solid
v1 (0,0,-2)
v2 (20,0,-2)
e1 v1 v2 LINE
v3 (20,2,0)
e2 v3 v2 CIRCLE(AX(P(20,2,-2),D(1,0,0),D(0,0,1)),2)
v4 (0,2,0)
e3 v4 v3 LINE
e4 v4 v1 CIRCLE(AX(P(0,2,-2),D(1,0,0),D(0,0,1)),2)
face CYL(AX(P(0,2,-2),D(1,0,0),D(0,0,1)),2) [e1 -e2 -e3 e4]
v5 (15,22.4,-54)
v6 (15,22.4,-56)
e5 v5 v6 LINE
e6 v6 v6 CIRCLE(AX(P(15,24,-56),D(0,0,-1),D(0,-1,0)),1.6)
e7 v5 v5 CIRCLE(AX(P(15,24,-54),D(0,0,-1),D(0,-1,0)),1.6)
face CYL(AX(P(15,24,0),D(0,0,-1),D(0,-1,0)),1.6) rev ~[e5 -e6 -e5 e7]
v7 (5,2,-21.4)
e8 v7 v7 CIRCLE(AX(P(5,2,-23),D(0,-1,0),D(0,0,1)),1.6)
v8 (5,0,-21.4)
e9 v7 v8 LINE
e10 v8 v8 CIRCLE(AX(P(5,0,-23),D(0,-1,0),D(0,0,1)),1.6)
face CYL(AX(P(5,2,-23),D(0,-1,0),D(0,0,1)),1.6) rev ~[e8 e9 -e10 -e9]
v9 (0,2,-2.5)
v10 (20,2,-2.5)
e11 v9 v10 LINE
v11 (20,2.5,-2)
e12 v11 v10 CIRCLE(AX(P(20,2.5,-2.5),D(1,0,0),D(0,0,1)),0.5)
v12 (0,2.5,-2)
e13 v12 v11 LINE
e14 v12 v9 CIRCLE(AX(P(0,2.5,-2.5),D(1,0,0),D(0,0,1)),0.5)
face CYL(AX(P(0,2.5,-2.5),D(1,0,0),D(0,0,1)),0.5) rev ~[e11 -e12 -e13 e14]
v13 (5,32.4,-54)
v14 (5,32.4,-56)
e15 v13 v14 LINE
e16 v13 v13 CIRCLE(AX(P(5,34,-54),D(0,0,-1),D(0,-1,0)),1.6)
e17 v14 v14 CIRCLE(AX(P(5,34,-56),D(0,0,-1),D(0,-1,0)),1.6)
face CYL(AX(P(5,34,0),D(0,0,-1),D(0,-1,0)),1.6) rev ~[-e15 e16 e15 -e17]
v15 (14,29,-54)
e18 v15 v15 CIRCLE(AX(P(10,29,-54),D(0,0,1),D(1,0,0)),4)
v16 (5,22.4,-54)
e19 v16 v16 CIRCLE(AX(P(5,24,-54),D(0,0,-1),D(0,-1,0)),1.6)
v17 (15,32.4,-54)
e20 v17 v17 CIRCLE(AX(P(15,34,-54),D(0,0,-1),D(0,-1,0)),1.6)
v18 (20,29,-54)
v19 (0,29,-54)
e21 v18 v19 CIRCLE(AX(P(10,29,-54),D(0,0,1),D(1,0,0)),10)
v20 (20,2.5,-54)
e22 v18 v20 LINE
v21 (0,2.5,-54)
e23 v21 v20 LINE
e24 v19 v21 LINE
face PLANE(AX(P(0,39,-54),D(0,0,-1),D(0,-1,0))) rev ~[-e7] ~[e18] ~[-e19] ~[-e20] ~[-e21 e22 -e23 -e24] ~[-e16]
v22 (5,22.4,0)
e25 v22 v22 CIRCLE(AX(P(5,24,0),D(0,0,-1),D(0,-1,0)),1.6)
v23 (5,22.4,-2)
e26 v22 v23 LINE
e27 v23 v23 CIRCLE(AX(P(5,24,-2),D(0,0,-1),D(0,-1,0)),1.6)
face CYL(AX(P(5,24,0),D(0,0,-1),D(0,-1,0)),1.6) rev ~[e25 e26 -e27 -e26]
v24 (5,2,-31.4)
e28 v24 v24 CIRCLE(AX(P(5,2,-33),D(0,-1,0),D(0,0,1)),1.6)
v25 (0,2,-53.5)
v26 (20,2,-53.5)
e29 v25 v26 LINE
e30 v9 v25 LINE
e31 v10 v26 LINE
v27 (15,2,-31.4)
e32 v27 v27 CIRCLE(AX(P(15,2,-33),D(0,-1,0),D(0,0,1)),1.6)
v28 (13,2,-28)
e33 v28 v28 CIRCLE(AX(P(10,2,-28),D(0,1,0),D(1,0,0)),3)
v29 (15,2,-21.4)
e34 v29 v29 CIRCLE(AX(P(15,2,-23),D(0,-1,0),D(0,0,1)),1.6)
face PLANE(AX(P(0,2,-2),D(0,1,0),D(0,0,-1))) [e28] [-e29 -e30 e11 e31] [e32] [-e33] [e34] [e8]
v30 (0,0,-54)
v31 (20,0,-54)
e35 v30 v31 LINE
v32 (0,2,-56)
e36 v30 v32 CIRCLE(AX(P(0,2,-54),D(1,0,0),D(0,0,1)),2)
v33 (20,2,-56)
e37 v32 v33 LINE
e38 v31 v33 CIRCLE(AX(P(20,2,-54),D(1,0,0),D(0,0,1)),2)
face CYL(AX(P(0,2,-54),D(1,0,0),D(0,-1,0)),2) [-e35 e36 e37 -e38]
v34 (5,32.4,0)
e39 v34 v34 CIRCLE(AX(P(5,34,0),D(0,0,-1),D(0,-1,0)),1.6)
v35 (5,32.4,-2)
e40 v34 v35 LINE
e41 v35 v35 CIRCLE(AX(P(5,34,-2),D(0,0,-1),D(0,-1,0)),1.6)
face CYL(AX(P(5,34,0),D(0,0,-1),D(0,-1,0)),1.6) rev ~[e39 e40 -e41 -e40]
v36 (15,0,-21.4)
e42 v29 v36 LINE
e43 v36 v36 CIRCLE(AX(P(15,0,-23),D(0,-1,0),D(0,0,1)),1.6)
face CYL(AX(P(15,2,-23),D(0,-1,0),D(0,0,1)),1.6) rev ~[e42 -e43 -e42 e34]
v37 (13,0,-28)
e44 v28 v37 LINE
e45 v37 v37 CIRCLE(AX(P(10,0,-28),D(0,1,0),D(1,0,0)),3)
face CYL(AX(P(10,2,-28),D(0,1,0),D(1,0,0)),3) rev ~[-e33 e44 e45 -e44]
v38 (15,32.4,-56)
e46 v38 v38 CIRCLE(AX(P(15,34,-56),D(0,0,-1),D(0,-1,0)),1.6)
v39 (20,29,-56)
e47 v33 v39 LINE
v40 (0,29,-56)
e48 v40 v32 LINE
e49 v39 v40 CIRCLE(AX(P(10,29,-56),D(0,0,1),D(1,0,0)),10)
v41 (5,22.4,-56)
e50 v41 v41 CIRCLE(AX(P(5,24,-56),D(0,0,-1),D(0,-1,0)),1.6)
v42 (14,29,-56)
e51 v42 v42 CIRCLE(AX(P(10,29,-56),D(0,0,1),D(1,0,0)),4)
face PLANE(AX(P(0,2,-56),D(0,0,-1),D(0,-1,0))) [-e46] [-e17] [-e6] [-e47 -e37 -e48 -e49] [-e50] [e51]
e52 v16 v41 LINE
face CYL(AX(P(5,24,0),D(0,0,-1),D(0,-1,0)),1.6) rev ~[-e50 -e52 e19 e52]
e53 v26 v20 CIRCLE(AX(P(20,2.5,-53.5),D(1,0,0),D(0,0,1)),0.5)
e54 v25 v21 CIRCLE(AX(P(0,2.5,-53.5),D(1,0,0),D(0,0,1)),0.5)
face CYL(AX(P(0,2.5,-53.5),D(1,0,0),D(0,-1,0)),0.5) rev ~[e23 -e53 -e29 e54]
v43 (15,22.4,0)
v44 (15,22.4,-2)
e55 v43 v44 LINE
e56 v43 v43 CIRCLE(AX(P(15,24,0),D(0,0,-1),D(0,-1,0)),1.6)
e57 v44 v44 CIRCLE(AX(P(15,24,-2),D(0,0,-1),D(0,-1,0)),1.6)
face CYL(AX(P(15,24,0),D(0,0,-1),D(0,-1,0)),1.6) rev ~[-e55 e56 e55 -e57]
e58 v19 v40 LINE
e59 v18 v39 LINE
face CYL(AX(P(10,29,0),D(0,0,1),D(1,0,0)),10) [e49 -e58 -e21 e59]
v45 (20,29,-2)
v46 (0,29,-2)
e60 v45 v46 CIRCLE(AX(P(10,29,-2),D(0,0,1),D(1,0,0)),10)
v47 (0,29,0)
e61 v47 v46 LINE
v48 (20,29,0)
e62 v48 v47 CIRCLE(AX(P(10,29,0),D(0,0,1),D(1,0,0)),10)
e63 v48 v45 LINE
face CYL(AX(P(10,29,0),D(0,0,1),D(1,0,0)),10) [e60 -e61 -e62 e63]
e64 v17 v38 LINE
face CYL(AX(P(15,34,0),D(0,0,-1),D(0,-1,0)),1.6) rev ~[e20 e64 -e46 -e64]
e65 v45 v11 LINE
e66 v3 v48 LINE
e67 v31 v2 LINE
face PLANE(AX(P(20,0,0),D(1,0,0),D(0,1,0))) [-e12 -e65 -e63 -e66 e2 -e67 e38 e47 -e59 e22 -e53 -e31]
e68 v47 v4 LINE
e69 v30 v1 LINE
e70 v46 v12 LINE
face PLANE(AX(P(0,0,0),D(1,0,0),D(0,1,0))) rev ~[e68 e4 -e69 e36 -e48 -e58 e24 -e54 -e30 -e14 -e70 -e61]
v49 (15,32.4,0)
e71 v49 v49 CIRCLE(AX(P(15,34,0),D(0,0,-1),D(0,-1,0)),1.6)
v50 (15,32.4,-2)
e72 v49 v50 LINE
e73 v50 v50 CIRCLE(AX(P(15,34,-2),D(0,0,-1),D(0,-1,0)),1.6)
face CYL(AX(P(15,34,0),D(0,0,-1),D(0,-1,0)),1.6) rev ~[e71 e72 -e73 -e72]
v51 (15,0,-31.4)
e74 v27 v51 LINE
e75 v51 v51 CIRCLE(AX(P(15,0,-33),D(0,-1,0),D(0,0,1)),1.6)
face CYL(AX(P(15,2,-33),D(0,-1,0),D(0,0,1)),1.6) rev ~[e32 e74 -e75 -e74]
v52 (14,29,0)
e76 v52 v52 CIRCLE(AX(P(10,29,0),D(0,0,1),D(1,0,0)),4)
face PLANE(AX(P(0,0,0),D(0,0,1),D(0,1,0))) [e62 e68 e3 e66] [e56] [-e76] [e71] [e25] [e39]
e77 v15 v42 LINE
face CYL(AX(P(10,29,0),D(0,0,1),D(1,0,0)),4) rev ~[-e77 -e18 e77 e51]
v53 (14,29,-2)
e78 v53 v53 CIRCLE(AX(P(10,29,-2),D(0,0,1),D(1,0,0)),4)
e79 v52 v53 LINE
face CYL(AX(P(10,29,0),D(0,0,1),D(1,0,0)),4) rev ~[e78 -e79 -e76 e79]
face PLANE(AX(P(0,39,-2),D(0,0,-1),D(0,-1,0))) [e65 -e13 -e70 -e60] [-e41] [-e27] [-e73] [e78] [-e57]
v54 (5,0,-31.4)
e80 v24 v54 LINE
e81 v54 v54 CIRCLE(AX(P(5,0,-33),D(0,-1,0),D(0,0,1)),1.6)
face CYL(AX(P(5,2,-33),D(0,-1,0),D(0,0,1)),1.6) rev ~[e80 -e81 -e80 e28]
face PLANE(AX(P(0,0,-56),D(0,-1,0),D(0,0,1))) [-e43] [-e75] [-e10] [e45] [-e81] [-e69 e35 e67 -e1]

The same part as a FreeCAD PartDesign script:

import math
import FreeCAD as App
import Part
import Sketcher
Q = App.Units.Quantity


def edges_at(feature, points):
    """Names of the edges that pass closest to the given points."""
    edges = feature.Shape.Edges
    near = lambda p: min(range(len(edges)), key=lambda i: edges[i].distToShape(Part.Vertex(*p))[0])
    return sorted({f"Edge{near(p) + 1}" for p in points})

doc = App.newDocument("Part")
body = doc.addObject("PartDesign::Body", "Body")

# Sketch on YZ plane
sketch1 = body.newObject("Sketcher::SketchObject", "Sketch")
sketch1.AttachmentSupport = (doc.getObject("YZ_Plane"), [""])
sketch1.MapMode = "FlatFace"
sketch1.addGeometry([
    Part.LineSegment(App.Vector(0, 0, 0), App.Vector(0, -56, 0)),  # 0
    Part.LineSegment(App.Vector(0, -56, 0), App.Vector(39, -56, 0)),  # 1
    Part.LineSegment(App.Vector(39, -56, 0), App.Vector(39, -54, 0)),  # 2
    Part.LineSegment(App.Vector(39, -54, 0), App.Vector(2, -54, 0)),  # 3
    Part.LineSegment(App.Vector(2, -54, 0), App.Vector(2, -2, 0)),  # 4
    Part.LineSegment(App.Vector(2, -2, 0), App.Vector(39, -2, 0)),  # 5
    Part.LineSegment(App.Vector(39, -2, 0), App.Vector(39, 0, 0)),  # 6
    Part.LineSegment(App.Vector(39, 0, 0), App.Vector(0, 0, 0)),  # 7
], False)
sketch1.addConstraint([
    Sketcher.Constraint("Coincident", 0, 2, 1, 1),
    Sketcher.Constraint("Coincident", 1, 2, 2, 1),
    Sketcher.Constraint("Coincident", 2, 2, 3, 1),
    Sketcher.Constraint("Coincident", 3, 2, 4, 1),
    Sketcher.Constraint("Coincident", 4, 2, 5, 1),
    Sketcher.Constraint("Coincident", 5, 2, 6, 1),
    Sketcher.Constraint("Coincident", 6, 2, 7, 1),
    Sketcher.Constraint("Coincident", 7, 2, 0, 1),
    Sketcher.Constraint("Vertical", 0),
    Sketcher.Constraint("Horizontal", 1),
    Sketcher.Constraint("Vertical", 2),
    Sketcher.Constraint("Horizontal", 3),
    Sketcher.Constraint("Vertical", 4),
    Sketcher.Constraint("Horizontal", 5),
    Sketcher.Constraint("Vertical", 6),
    Sketcher.Constraint("Horizontal", 7),
    Sketcher.Constraint("Coincident", 7, 2, -1, 1),
    Sketcher.Constraint("Vertical", 2, 2, 5, 2),
    Sketcher.Constraint("Equal", 2, 6),
    Sketcher.Constraint("DistanceX", 3, 2, 3, 1, Q("37 mm")),
    Sketcher.Constraint("DistanceY", 0, 2, 0, 1, Q("56 mm")),
    Sketcher.Constraint("DistanceY", 2, 1, 2, 2, Q("2 mm")),
    Sketcher.Constraint("DistanceX", -1, 1, 3, 2, Q("2 mm")),
])
pad1 = body.newObject("PartDesign::Pad", "Pad")
pad1.Profile = sketch1
pad1.Length = 20

# Sketch on XY plane
sketch2 = body.newObject("Sketcher::SketchObject", "Sketch001")
sketch2.AttachmentSupport = (doc.getObject("XY_Plane"), [""])
sketch2.MapMode = "FlatFace"
sketch2.addGeometry([
    Part.ArcOfCircle(Part.Circle(App.Vector(10, 29, 0), App.Vector(0, 0, 1), 10), math.radians(90), math.radians(180)),  # 0
    Part.LineSegment(App.Vector(10, 39, 0), App.Vector(0, 39, 0)),  # 1
    Part.LineSegment(App.Vector(0, 39, 0), App.Vector(0, 29, 0)),  # 2
    Part.ArcOfCircle(Part.Circle(App.Vector(10, 29, 0), App.Vector(0, 0, 1), 10), math.radians(0), math.radians(90)),  # 3
    Part.LineSegment(App.Vector(20, 29, 0), App.Vector(20, 39, 0)),  # 4
    Part.LineSegment(App.Vector(20, 39, 0), App.Vector(10, 39, 0)),  # 5
], False)
sketch2.addConstraint([
    Sketcher.Constraint("Tangent", 0, 1, 1, 1),
    Sketcher.Constraint("Coincident", 1, 2, 2, 1),
    Sketcher.Constraint("Tangent", 2, 2, 0, 2),
    Sketcher.Constraint("Tangent", 3, 1, 4, 1),
    Sketcher.Constraint("Coincident", 4, 2, 5, 1),
    Sketcher.Constraint("Tangent", 5, 2, 3, 2),
    Sketcher.Constraint("Horizontal", 1),
    Sketcher.Constraint("Vertical", 2),
    Sketcher.Constraint("Vertical", 4),
    Sketcher.Constraint("Horizontal", 5),
    Sketcher.Constraint("Coincident", 3, 3, 0, 3),
    Sketcher.Constraint("Equal", 0, 3),
    Sketcher.Constraint("PointOnObject", 1, 2, -2),
    Sketcher.Constraint("Radius", 0, Q("10 mm")),
    Sketcher.Constraint("DistanceY", -1, 1, 0, 3, Q("29 mm")),
])
pocket1 = body.newObject("PartDesign::Pocket", "Pocket")
pocket1.Profile = sketch2
pocket1.Type = "ThroughAll"

# Sketch on XY plane
sketch3 = body.newObject("Sketcher::SketchObject", "Sketch002")
sketch3.AttachmentSupport = (doc.getObject("XY_Plane"), [""])
sketch3.MapMode = "FlatFace"
sketch3.addGeometry([
    Part.Circle(App.Vector(5, 34, 0), App.Vector(0, 0, 1), 1.6),
    Part.Circle(App.Vector(15, 34, 0), App.Vector(0, 0, 1), 1.6),
    Part.Circle(App.Vector(15, 24, 0), App.Vector(0, 0, 1), 1.6),
    Part.Circle(App.Vector(5, 24, 0), App.Vector(0, 0, 1), 1.6),
], False)
sketch3.addConstraint([
    Sketcher.Constraint("Equal", 0, 1),
    Sketcher.Constraint("Equal", 1, 2),
    Sketcher.Constraint("Equal", 2, 3),
    Sketcher.Constraint("Horizontal", 0, 3, 1, 3),
    Sketcher.Constraint("Horizontal", 2, 3, 3, 3),
    Sketcher.Constraint("Vertical", 1, 3, 2, 3),
    Sketcher.Constraint("Vertical", 0, 3, 3, 3),
    Sketcher.Constraint("Diameter", 0, Q("3.2 mm")),
    Sketcher.Constraint("DistanceX", -1, 1, 0, 3, Q("5 mm")),
    Sketcher.Constraint("DistanceY", -1, 1, 0, 3, Q("34 mm")),
    Sketcher.Constraint("DistanceX", -1, 1, 1, 3, Q("15 mm")),
    Sketcher.Constraint("DistanceY", -1, 1, 2, 3, Q("24 mm")),
])
doc.recompute()
hole = body.newObject("PartDesign::Hole", "Hole")
hole.Profile = sketch3
hole.ThreadType = "None"
hole.Diameter = 3.2
hole.DepthType = "ThroughAll"

# Sketch on XY plane
sketch4 = body.newObject("Sketcher::SketchObject", "Sketch003")
sketch4.AttachmentSupport = (doc.getObject("XY_Plane"), [""])
sketch4.MapMode = "FlatFace"
sketch4.addGeometry(Part.Circle(App.Vector(10, 29, 0), App.Vector(0, 0, 1), 4), False)
sketch4.addConstraint([
    Sketcher.Constraint("Diameter", 0, Q("8 mm")),
    Sketcher.Constraint("DistanceX", -1, 1, 0, 3, Q("10 mm")),
    Sketcher.Constraint("DistanceY", -1, 1, 0, 3, Q("29 mm")),
])
pocket2 = body.newObject("PartDesign::Pocket", "Pocket001")
pocket2.Profile = sketch4
pocket2.Type = "ThroughAll"
doc.recompute()

fillet = body.newObject("PartDesign::Fillet", "Fillet")
fillet.Base = (pocket2, edges_at(pocket2, [(10, 2, -54), (10, 2, -2)]))
fillet.Radius = 0.5
doc.recompute()

fillet2 = body.newObject("PartDesign::Fillet", "Fillet001")
fillet2.Base = (fillet, edges_at(fillet, [(10, 0, -56), (10, 0, 0)]))
fillet2.Radius = 2

# Sketch on XZ plane
sketch5 = body.newObject("Sketcher::SketchObject", "Sketch004")
sketch5.AttachmentSupport = (doc.getObject("XZ_Plane"), [""])
sketch5.MapMode = "FlatFace"
sketch5.AttachmentOffset = App.Placement(App.Vector(0, 0, -2), App.Rotation())
sketch5.addGeometry([
    Part.Circle(App.Vector(5, -33, 0), App.Vector(0, 0, 1), 1.6),
    Part.Circle(App.Vector(15, -33, 0), App.Vector(0, 0, 1), 1.6),
    Part.Circle(App.Vector(15, -23, 0), App.Vector(0, 0, 1), 1.6),
    Part.Circle(App.Vector(5, -23, 0), App.Vector(0, 0, 1), 1.6),
], False)
sketch5.addConstraint([
    Sketcher.Constraint("Equal", 0, 1),
    Sketcher.Constraint("Equal", 1, 2),
    Sketcher.Constraint("Equal", 2, 3),
    Sketcher.Constraint("Horizontal", 0, 3, 1, 3),
    Sketcher.Constraint("Horizontal", 2, 3, 3, 3),
    Sketcher.Constraint("Vertical", 1, 3, 2, 3),
    Sketcher.Constraint("Vertical", 0, 3, 3, 3),
    Sketcher.Constraint("Diameter", 0, Q("3.2 mm")),
    Sketcher.Constraint("DistanceX", -1, 1, 0, 3, Q("5 mm")),
    Sketcher.Constraint("DistanceY", 0, 3, -1, 1, Q("33 mm")),
    Sketcher.Constraint("DistanceX", -1, 1, 1, 3, Q("15 mm")),
    Sketcher.Constraint("DistanceY", 2, 3, -1, 1, Q("23 mm")),
])
doc.recompute()
hole2 = body.newObject("PartDesign::Hole", "Hole001")
hole2.Profile = sketch5
hole2.ThreadType = "None"
hole2.Diameter = 3.2
hole2.DepthType = "ThroughAll"
hole2.Reversed = True

# Sketch on XZ plane
sketch6 = body.newObject("Sketcher::SketchObject", "Sketch005")
sketch6.AttachmentSupport = (doc.getObject("XZ_Plane"), [""])
sketch6.MapMode = "FlatFace"
sketch6.AttachmentOffset = App.Placement(App.Vector(0, 0, -2), App.Rotation())
sketch6.addGeometry(Part.Circle(App.Vector(10, -28, 0), App.Vector(0, 0, 1), 3), False)
sketch6.addConstraint([
    Sketcher.Constraint("Diameter", 0, Q("6 mm")),
    Sketcher.Constraint("DistanceX", -1, 1, 0, 3, Q("10 mm")),
    Sketcher.Constraint("DistanceY", 0, 3, -1, 1, Q("28 mm")),
])
pocket3 = body.newObject("PartDesign::Pocket", "Pocket002")
pocket3.Profile = sketch6
pocket3.Type = "ThroughAll"
pocket3.Reversed = True

doc.recompute()
